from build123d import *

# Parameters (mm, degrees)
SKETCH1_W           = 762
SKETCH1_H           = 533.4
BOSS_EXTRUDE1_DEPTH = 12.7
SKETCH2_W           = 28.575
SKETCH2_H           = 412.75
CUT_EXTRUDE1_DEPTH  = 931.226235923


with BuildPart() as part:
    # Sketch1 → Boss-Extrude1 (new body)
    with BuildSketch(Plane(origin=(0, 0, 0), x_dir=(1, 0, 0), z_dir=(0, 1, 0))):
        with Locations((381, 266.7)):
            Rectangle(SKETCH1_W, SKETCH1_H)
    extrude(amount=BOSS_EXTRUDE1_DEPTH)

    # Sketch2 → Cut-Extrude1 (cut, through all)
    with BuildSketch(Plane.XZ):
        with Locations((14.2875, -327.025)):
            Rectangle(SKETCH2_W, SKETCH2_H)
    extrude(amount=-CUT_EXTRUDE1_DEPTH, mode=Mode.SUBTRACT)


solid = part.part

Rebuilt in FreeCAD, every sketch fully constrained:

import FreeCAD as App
import Part
import Sketcher
from FreeCAD import Vector
Q = App.Units.Quantity


def add_polygon(sketch, points):
    """Adds a closed chain of lines whose ends are joined by coincident constraints."""
    first, n = sketch.GeometryCount, len(points)
    for a, b in zip(points, points[1:] + points[:1]):
        sketch.addGeometry(Part.LineSegment(App.Vector(*a, 0), App.Vector(*b, 0)), False)
    for i in range(n):
        sketch.addConstraint(Sketcher.Constraint("Coincident", first + i, 2, first + (i + 1) % n, 1))

doc = App.newDocument("Part")
params = doc.addObject("Spreadsheet::Sheet", "Params")
for row, (alias, value) in enumerate([
    ("sketch1_width", "30 in"),
    ("sketch1_height", "21 in"),
    ("pad1_length", "0.5 in"),
    ("sketch2_height", "16.25 in"),
    ("sketch2_width", "1.125 in"),
], start=1):
    params.set(f"A{row}", alias)
    params.set(f"B{row}", "=" + value)
    params.setAlias(f"B{row}", alias)

body = doc.addObject("PartDesign::Body", "Body")

# Sketch on XZ plane
sketch1 = body.newObject("Sketcher::SketchObject", "Sketch")
sketch1.AttachmentSupport = (doc.getObject("XZ_Plane"), [""])
sketch1.MapMode = "FlatFace"
add_polygon(sketch1, [(0, -533), (0, 0), (762, 0), (762, -533)])  # lines 0-3
sketch1.addConstraint(Sketcher.Constraint("Vertical", 0))
sketch1.addConstraint(Sketcher.Constraint("Horizontal", 1))
sketch1.addConstraint(Sketcher.Constraint("Vertical", 2))
sketch1.addConstraint(Sketcher.Constraint("Horizontal", 3))
sketch1.addConstraint(Sketcher.Constraint("Coincident", 0, 2, -1, 1))
sketch1.addConstraint(Sketcher.Constraint("DistanceX", 1, 1, 1, 2, Q("30 in")))
sketch1.addConstraint(Sketcher.Constraint("DistanceY", 0, 1, 0, 2, Q("21 in")))
sketch1.setExpression("Constraints[9]", "Params.sketch1_width")
sketch1.setExpression("Constraints[10]", "Params.sketch1_height")
pad1 = body.newObject("PartDesign::Pad", "Pad")
pad1.Profile = sketch1
pad1.setExpression("Length", "Params.pad1_length")
pad1.Reversed = True

# Sketch on XZ plane
sketch2 = body.newObject("Sketcher::SketchObject", "Sketch001")
sketch2.AttachmentSupport = (doc.getObject("XZ_Plane"), [""])
sketch2.MapMode = "FlatFace"
add_polygon(sketch2, [(0, -121), (0, -533), (29, -533), (29, -121)])  # lines 0-3
sketch2.addConstraint(Sketcher.Constraint("Vertical", 0))
sketch2.addConstraint(Sketcher.Constraint("Horizontal", 1))
sketch2.addConstraint(Sketcher.Constraint("Vertical", 2))
sketch2.addConstraint(Sketcher.Constraint("Horizontal", 3))
sketch2.addConstraint(Sketcher.Constraint("PointOnObject", 0, 2, -2))
sketch2.addConstraint(Sketcher.Constraint("DistanceY", 0, 2, -1, 1, Q("21 in")))
sketch2.addConstraint(Sketcher.Constraint("DistanceY", 0, 2, 0, 1, Q("16.25 in")))
sketch2.addConstraint(Sketcher.Constraint("DistanceX", 1, 1, 1, 2, Q("1.125 in")))
sketch2.setExpression("Constraints[10]", "Params.sketch2_height")
sketch2.setExpression("Constraints[11]", "Params.sketch2_width")
pocket1 = body.newObject("PartDesign::Pocket", "Pocket")
pocket1.Profile = sketch2
pocket1.Type = "ThroughAll"

doc.recompute()
